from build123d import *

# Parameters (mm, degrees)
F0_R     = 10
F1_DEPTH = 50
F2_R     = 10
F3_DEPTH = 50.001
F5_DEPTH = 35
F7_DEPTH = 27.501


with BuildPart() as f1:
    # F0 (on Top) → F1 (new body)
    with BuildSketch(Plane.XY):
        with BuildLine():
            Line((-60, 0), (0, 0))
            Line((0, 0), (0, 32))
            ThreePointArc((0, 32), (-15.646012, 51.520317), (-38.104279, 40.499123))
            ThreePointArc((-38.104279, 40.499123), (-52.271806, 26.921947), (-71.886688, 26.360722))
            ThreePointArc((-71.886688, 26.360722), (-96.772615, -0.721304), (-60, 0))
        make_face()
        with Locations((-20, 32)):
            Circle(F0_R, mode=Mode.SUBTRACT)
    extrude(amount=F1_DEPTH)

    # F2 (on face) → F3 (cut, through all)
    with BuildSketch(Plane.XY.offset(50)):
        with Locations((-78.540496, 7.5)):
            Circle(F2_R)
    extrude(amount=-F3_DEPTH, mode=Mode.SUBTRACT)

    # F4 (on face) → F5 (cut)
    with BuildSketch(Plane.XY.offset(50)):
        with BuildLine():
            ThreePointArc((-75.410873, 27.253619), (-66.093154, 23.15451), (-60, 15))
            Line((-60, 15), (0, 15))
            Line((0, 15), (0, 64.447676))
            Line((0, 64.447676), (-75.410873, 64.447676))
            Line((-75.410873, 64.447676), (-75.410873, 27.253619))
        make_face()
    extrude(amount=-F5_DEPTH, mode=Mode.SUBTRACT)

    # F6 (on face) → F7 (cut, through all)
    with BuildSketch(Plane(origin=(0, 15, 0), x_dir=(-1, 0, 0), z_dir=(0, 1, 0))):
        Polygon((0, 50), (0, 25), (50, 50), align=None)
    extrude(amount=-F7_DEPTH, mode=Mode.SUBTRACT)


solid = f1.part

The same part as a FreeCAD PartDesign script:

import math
import FreeCAD as App
import Part
import Sketcher

doc = App.newDocument("Part")
params = doc.addObject("Spreadsheet::Sheet", "Params")
for row, (alias, value) in enumerate([
    ("sketch1_diameter", "20 mm"),
    ("sketch1_radius", "20 mm"),
    ("sketch1_width", "60 mm"),
    ("sketch1_height", "32 mm"),
    ("sketch1_radius2", "27.289999 mm"),
    ("pad1_length", "50 mm"),
    ("sketch2_diameter", "20 mm"),
    ("sketch3_radius", "19.999999 mm"),
    ("sketch3_width", "60 mm"),
    ("pocket2_length", "35 mm"),
    ("sketch4_width", "50 mm"),
    ("sketch4_height", "25 mm"),
], start=1):
    params.set(f"A{row}", alias)
    params.set(f"B{row}", "=" + value)
    params.setAlias(f"B{row}", alias)

body = doc.addObject("PartDesign::Body", "Body")

# Sketch on XY plane
sketch1 = body.newObject("Sketcher::SketchObject", "Sketch")
sketch1.AttachmentSupport = (doc.getObject("XY_Plane"), [""])
sketch1.MapMode = "FlatFace"
sketch1.addGeometry([
    Part.LineSegment(App.Vector(-60, 0, 0), App.Vector(0, 0, 0)),  # 0
    Part.LineSegment(App.Vector(0, 0, 0), App.Vector(0, 32, 0)),  # 1
    Part.ArcOfCircle(Part.Circle(App.Vector(-20, 32, 0), App.Vector(0, 0, 1), 20), math.radians(0), math.radians(155)),  # 2
    Part.ArcOfCircle(Part.Circle(App.Vector(-63, 52, 0), App.Vector(0, 0, 1), 27), math.radians(-109), math.radians(-25)),  # 3
    Part.ArcOfCircle(Part.Circle(App.Vector(-79, 7, 0), App.Vector(0, 0, 1), 20), math.radians(71), math.radians(338)),  # 4
    Part.Circle(App.Vector(-20, 32, 0), App.Vector(0, 0, 1), 10),  # 5
], False)
sketch1.addConstraint([
    Sketcher.Constraint("Coincident", 0, 2, 1, 1),
    Sketcher.Constraint("Tangent", 1, 2, 2, 1),
    Sketcher.Constraint("Tangent", 2, 2, 3, 2),
    Sketcher.Constraint("Tangent", 3, 1, 4, 1),
    Sketcher.Constraint("Coincident", 4, 2, 0, 1),
    Sketcher.Constraint("Horizontal", 0),
    Sketcher.Constraint("Vertical", 1),
    Sketcher.Constraint("Coincident", 0, 2, -1, 1),
    Sketcher.Constraint("Coincident", 5, 3, 2, 3),
    Sketcher.Constraint("Equal", 2, 4),
    Sketcher.Constraint("Diameter", 5, 20.0),
    Sketcher.Constraint("Radius", 2, 20.0),
    Sketcher.Constraint("DistanceX", 0, 1, 0, 2, 60.0),
    Sketcher.Constraint("DistanceY", 1, 1, 1, 2, 32.0),
    Sketcher.Constraint("Radius", 3, 27.289999),
    Sketcher.Constraint("DistanceY", -1, 1, 4, 3, 7.5),
])
sketch1.setExpression("Constraints[10]", "Params.sketch1_diameter")
sketch1.setExpression("Constraints[11]", "Params.sketch1_radius")
sketch1.setExpression("Constraints[12]", "Params.sketch1_width")
sketch1.setExpression("Constraints[13]", "Params.sketch1_height")
sketch1.setExpression("Constraints[14]", "Params.sketch1_radius2")
pad1 = body.newObject("PartDesign::Pad", "Pad")
pad1.Profile = sketch1
pad1.setExpression("Length", "Params.pad1_length")

# Sketch on XY plane
sketch2 = body.newObject("Sketcher::SketchObject", "Sketch001")
sketch2.AttachmentSupport = (doc.getObject("XY_Plane"), [""])
sketch2.MapMode = "FlatFace"
sketch2.AttachmentOffset = App.Placement(App.Vector(0, 0, 50), App.Rotation())
sketch2.addGeometry(Part.Circle(App.Vector(-79, 8, 0), App.Vector(0, 0, 1), 10), False)
sketch2.addConstraint([
    Sketcher.Constraint("Diameter", 0, 20.0),
    Sketcher.Constraint("DistanceY", -1, 1, 0, 3, 7.5),
    Sketcher.Constraint("DistanceX", 0, 3, -1, 1, 78.540496),
])
sketch2.setExpression("Constraints[0]", "Params.sketch2_diameter")
pocket1 = body.newObject("PartDesign::Pocket", "Pocket")
pocket1.Profile = sketch2
pocket1.Type = "ThroughAll"

# Sketch on XY plane
sketch3 = body.newObject("Sketcher::SketchObject", "Sketch002")
sketch3.AttachmentSupport = (doc.getObject("XY_Plane"), [""])
sketch3.MapMode = "FlatFace"
sketch3.AttachmentOffset = App.Placement(App.Vector(0, 0, 50), App.Rotation())
sketch3.addGeometry([
    Part.ArcOfCircle(Part.Circle(App.Vector(-79, 8, 0), App.Vector(0, 0, 1), 20), math.radians(22), math.radians(81)),  # 0
    Part.LineSegment(App.Vector(-60, 15, 0), App.Vector(0, 15, 0)),  # 1
    Part.LineSegment(App.Vector(0, 15, 0), App.Vector(0, 64, 0)),  # 2
    Part.LineSegment(App.Vector(0, 64, 0), App.Vector(-75, 64, 0)),  # 3
    Part.LineSegment(App.Vector(-75, 64, 0), App.Vector(-75, 27, 0)),  # 4
], False)
sketch3.addConstraint([
    Sketcher.Constraint("Coincident", 0, 1, 1, 1),
    Sketcher.Constraint("Coincident", 1, 2, 2, 1),
    Sketcher.Constraint("Coincident", 2, 2, 3, 1),
    Sketcher.Constraint("Coincident", 3, 2, 4, 1),
    Sketcher.Constraint("Coincident", 4, 2, 0, 2),
    Sketcher.Constraint("Horizontal", 1),
    Sketcher.Constraint("Vertical", 2),
    Sketcher.Constraint("Horizontal", 3),
    Sketcher.Constraint("Vertical", 4),
    Sketcher.Constraint("PointOnObject", 1, 2, -2),
    Sketcher.Constraint("Radius", 0, 19.999999),
    Sketcher.Constraint("DistanceX", 1, 1, 1, 2, 60.0),
    Sketcher.Constraint("DistanceY", -1, 1, 0, 1, 15.0),
    Sketcher.Constraint("DistanceY", -1, 1, 0, 3, 7.500001),
    Sketcher.Constraint("DistanceX", 3, 2, 3, 1, 75.410873),
    Sketcher.Constraint("DistanceY", 2, 1, 2, 2, 49.447676),
])
sketch3.setExpression("Constraints[10]", "Params.sketch3_radius")
sketch3.setExpression("Constraints[11]", "Params.sketch3_width")
pocket2 = body.newObject("PartDesign::Pocket", "Pocket001")
pocket2.Profile = sketch3
pocket2.setExpression("Length", "Params.pocket2_length")

# Sketch on XZ plane
sketch4 = body.newObject("Sketcher::SketchObject", "Sketch003")
sketch4.AttachmentSupport = (doc.getObject("XZ_Plane"), [""])
sketch4.MapMode = "FlatFace"
sketch4.AttachmentOffset = App.Placement(App.Vector(0, 0, -15), App.Rotation())
sketch4.addGeometry([
    Part.LineSegment(App.Vector(0, 50, 0), App.Vector(0, 25, 0)),
    Part.LineSegment(App.Vector(0, 25, 0), App.Vector(-50, 50, 0)),
    Part.LineSegment(App.Vector(-50, 50, 0), App.Vector(0, 50, 0)),
], False)
sketch4.addConstraint([
    Sketcher.Constraint("Coincident", 0, 2, 1, 1),
    Sketcher.Constraint("Coincident", 1, 2, 2, 1),
    Sketcher.Constraint("Coincident", 2, 2, 0, 1),
    Sketcher.Constraint("Vertical", 0),
    Sketcher.Constraint("Horizontal", 2),
    Sketcher.Constraint("PointOnObject", 0, 2, -2),
    Sketcher.Constraint("DistanceX", 2, 1, 2, 2, 50.0),
    Sketcher.Constraint("DistanceY", 0, 2, 0, 1, 25.0),
    Sketcher.Constraint("DistanceY", -1, 1, 0, 2, 25.0),
])
sketch4.setExpression("Constraints[6]", "Params.sketch4_width")
sketch4.setExpression("Constraints[7]", "Params.sketch4_height")
pocket3 = body.newObject("PartDesign::Pocket", "Pocket002")
pocket3.Profile = sketch4
pocket3.Type = "ThroughAll"
pocket3.Reversed = True

doc.recompute()
